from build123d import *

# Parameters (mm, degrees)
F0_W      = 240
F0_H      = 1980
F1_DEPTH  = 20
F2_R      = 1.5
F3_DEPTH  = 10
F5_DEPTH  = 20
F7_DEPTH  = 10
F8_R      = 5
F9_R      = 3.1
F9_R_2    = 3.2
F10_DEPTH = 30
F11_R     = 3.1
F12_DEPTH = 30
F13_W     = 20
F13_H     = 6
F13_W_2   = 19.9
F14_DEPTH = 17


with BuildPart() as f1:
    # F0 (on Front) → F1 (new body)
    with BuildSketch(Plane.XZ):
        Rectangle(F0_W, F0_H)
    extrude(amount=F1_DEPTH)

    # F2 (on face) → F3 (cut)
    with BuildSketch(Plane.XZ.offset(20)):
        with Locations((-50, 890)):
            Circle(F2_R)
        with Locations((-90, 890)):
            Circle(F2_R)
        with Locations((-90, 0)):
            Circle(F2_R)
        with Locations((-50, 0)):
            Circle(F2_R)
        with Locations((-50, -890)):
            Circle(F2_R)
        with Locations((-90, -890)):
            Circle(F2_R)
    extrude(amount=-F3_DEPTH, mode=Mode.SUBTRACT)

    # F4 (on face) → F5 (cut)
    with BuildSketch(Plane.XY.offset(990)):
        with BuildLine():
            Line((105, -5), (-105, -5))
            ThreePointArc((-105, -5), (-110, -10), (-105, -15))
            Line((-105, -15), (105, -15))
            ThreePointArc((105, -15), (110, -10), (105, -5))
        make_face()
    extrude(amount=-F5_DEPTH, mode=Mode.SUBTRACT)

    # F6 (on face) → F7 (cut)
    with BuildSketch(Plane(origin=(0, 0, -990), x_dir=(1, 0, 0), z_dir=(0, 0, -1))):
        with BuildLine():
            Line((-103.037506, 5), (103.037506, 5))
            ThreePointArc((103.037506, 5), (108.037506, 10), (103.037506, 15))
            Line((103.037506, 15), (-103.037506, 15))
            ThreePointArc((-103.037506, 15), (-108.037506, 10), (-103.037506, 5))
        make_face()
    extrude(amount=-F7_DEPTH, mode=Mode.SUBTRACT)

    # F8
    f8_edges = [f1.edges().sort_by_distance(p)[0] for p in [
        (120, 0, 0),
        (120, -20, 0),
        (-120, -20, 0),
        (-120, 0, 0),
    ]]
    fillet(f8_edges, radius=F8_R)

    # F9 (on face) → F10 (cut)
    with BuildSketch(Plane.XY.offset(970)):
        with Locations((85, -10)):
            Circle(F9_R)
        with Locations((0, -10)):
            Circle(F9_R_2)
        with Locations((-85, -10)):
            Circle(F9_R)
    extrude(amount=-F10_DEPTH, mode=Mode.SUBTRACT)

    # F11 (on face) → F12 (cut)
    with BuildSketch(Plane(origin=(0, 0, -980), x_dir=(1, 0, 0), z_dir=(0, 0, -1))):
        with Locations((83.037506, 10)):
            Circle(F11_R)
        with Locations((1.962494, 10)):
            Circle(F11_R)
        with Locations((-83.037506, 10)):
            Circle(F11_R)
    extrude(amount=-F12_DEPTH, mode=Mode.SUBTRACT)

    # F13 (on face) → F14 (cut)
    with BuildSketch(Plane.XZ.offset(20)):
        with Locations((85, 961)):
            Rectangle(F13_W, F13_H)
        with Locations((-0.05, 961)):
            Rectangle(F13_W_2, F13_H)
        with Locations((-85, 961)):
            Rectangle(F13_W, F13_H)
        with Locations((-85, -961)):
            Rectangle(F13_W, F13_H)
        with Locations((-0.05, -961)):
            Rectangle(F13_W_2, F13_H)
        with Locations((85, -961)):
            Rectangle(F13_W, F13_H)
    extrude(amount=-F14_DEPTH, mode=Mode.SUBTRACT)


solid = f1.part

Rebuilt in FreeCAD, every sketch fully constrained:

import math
import FreeCAD as App
import Part
import Sketcher
from FreeCAD import Vector


def edges_at(feature, points):
    """Names of the edges that pass closest to the given points."""
    edges = feature.Shape.Edges
    near = lambda p: min(range(len(edges)), key=lambda i: edges[i].distToShape(Part.Vertex(*p))[0])
    return sorted({f"Edge{near(p) + 1}" for p in points})


def add_polygon(sketch, points):
    """Adds a closed chain of lines whose ends are joined by coincident constraints."""
    first, n = sketch.GeometryCount, len(points)
    for a, b in zip(points, points[1:] + points[:1]):
        sketch.addGeometry(Part.LineSegment(App.Vector(*a, 0), App.Vector(*b, 0)), False)
    for i in range(n):
        sketch.addConstraint(Sketcher.Constraint("Coincident", first + i, 2, first + (i + 1) % n, 1))

doc = App.newDocument("Part")
body = doc.addObject("PartDesign::Body", "Body")

# Sketch on XZ plane
sketch1 = body.newObject("Sketcher::SketchObject", "Sketch")
sketch1.AttachmentSupport = (doc.getObject("XZ_Plane"), [""])
sketch1.MapMode = "FlatFace"
add_polygon(sketch1, [(-120, 990), (-120, -990), (120, -990), (120, 990)])  # lines 0-3
sketch1.addConstraint([
    Sketcher.Constraint("Vertical", 0),
    Sketcher.Constraint("Horizontal", 1),
    Sketcher.Constraint("Vertical", 2),
    Sketcher.Constraint("Horizontal", 3),
    Sketcher.Constraint("Symmetric", 0, 2, 2, 2, -1, 1),
    Sketcher.Constraint("DistanceX", 1, 1, 1, 2, 240.0),
    Sketcher.Constraint("DistanceY", 0, 2, 0, 1, 1980.0),
])
pad1 = body.newObject("PartDesign::Pad", "Pad")
pad1.Profile = sketch1
pad1.Length = 20

# Sketch on XZ plane
sketch2 = body.newObject("Sketcher::SketchObject", "Sketch001")
sketch2.AttachmentSupport = (doc.getObject("XZ_Plane"), [""])
sketch2.MapMode = "FlatFace"
sketch2.AttachmentOffset = App.Placement(Vector(0, 0, 20), App.Rotation())
sketch2.addGeometry([
    Part.Circle(Vector(-50, 890, 0), Vector(0, 0, 1), 1.5),  # 0
    Part.Circle(Vector(-90, 890, 0), Vector(0, 0, 1), 1.5),  # 1
    Part.Circle(Vector(-90, 0, 0), Vector(0, 0, 1), 1.5),  # 2
    Part.Circle(Vector(-50, 0, 0), Vector(0, 0, 1), 1.5),  # 3
    Part.Circle(Vector(-50, -890, 0), Vector(0, 0, 1), 1.5),  # 4
    Part.Circle(Vector(-90, -890, 0), Vector(0, 0, 1), 1.5),  # 5
], False)
sketch2.addConstraint([
    Sketcher.Constraint("Equal", 0, 1),
    Sketcher.Constraint("Equal", 1, 2),
    Sketcher.Constraint("Equal", 2, 3),
    Sketcher.Constraint("Equal", 3, 4),
    Sketcher.Constraint("Equal", 4, 5),
    Sketcher.Constraint("Symmetric", 0, 3, 4, 3, -1),
    Sketcher.Constraint("Symmetric", 1, 3, 5, 3, -1),
    Sketcher.Constraint("PointOnObject", 2, 3, -1),
    Sketcher.Constraint("PointOnObject", 3, 3, -1),
    Sketcher.Constraint("Horizontal", 0, 3, 1, 3),
    Sketcher.Constraint("Vertical", 1, 3, 2, 3),
    Sketcher.Constraint("Vertical", 0, 3, 3, 3),
    Sketcher.Constraint("Diameter", 0, 3.0),
    Sketcher.Constraint("DistanceX", 0, 3, -1, 1, 50.0),
    Sketcher.Constraint("DistanceY", -1, 1, 0, 3, 890.0),
    Sketcher.Constraint("DistanceX", 1, 3, -1, 1, 90.0),
])
pocket1 = body.newObject("PartDesign::Pocket", "Pocket")
pocket1.Profile = sketch2
pocket1.Length = 10

# Sketch on XY plane
sketch3 = body.newObject("Sketcher::SketchObject", "Sketch002")
sketch3.AttachmentSupport = (doc.getObject("XY_Plane"), [""])
sketch3.MapMode = "FlatFace"
sketch3.AttachmentOffset = App.Placement(Vector(0, 0, 990), App.Rotation())
sketch3.addGeometry([
    Part.LineSegment(Vector(105, -5, 0), Vector(-105, -5, 0)),
    Part.ArcOfCircle(Part.Circle(Vector(-105, -10, 0), Vector(0, 0, 1), 5), math.radians(90), math.radians(270)),
    Part.LineSegment(Vector(-105, -15, 0), Vector(105, -15, 0)),
    Part.ArcOfCircle(Part.Circle(Vector(105, -10, 0), Vector(0, 0, 1), 5), math.radians(-90), math.radians(90)),
], False)
sketch3.addConstraint([
    Sketcher.Constraint("Tangent", 0, 2, 1, 1),
    Sketcher.Constraint("Tangent", 1, 2, 2, 1),
    Sketcher.Constraint("Tangent", 2, 2, 3, 1),
    Sketcher.Constraint("Tangent", 3, 2, 0, 1),
    Sketcher.Constraint("Horizontal", 0),
    Sketcher.Constraint("Horizontal", 2),
    Sketcher.Constraint("Radius", 1, 5.0),
    Sketcher.Constraint("DistanceX", 0, 2, 0, 1, 210.0),
    Sketcher.Constraint("DistanceX", 1, 3, -1, 1, 105.0),
    Sketcher.Constraint("DistanceY", 1, 3, -1, 1, 10.0),
])
pocket2 = body.newObject("PartDesign::Pocket", "Pocket001")
pocket2.Profile = sketch3
pocket2.Length = 20

# Sketch on XY plane
sketch4 = body.newObject("Sketcher::SketchObject", "Sketch003")
sketch4.AttachmentSupport = (doc.getObject("XY_Plane"), [""])
sketch4.MapMode = "FlatFace"
sketch4.AttachmentOffset = App.Placement(Vector(0, 0, -990), App.Rotation())
sketch4.addGeometry([
    Part.LineSegment(Vector(-103, -5, 0), Vector(103, -5, 0)),
    Part.ArcOfCircle(Part.Circle(Vector(103, -10, 0), Vector(0, 0, 1), 5), math.radians(-90), math.radians(90)),
    Part.LineSegment(Vector(103, -15, 0), Vector(-103, -15, 0)),
    Part.ArcOfCircle(Part.Circle(Vector(-103, -10, 0), Vector(0, 0, 1), 5), math.radians(90), math.radians(270)),
], False)
sketch4.addConstraint([
    Sketcher.Constraint("Tangent", 0, 2, 1, 2),
    Sketcher.Constraint("Tangent", 1, 1, 2, 1),
    Sketcher.Constraint("Tangent", 2, 2, 3, 2),
    Sketcher.Constraint("Tangent", 3, 1, 0, 1),
    Sketcher.Constraint("Horizontal", 0),
    Sketcher.Constraint("Horizontal", 2),
    Sketcher.Constraint("Radius", 1, 5.0),
    Sketcher.Constraint("DistanceY", 1, 3, -1, 1, 10.0),
    Sketcher.Constraint("DistanceX", 0, 1, 0, 2, 206.075012),
    Sketcher.Constraint("DistanceX", -1, 1, 1, 3, 103.037506),
])
pocket3 = body.newObject("PartDesign::Pocket", "Pocket002")
pocket3.Profile = sketch4
pocket3.Length = 10
pocket3.Reversed = True
doc.recompute()

fillet = body.newObject("PartDesign::Fillet", "Fillet")
fillet.Base = (pocket3, edges_at(pocket3, [
    (120, 0, 0),
    (120, -20, 0),
    (-120, -20, 0),
    (-120, 0, 0),
]))
fillet.Radius = 5

# Sketch on XY plane
sketch5 = body.newObject("Sketcher::SketchObject", "Sketch004")
sketch5.AttachmentSupport = (doc.getObject("XY_Plane"), [""])
sketch5.MapMode = "FlatFace"
sketch5.AttachmentOffset = App.Placement(Vector(0, 0, 970), App.Rotation())
sketch5.addGeometry([
    Part.Circle(Vector(85, -10, 0), Vector(0, 0, 1), 3.1),
    Part.Circle(Vector(0, -10, 0), Vector(0, 0, 1), 3.2),
    Part.Circle(Vector(-85, -10, 0), Vector(0, 0, 1), 3.1),
], False)
sketch5.addConstraint([
    Sketcher.Constraint("Equal", 0, 2),
    Sketcher.Constraint("Symmetric", 0, 3, 2, 3, -2),
    Sketcher.Constraint("PointOnObject", 1, 3, -2),
    Sketcher.Constraint("Horizontal", 0, 3, 1, 3),
    Sketcher.Constraint("Diameter", 0, 6.2),
    Sketcher.Constraint("Diameter", 1, 6.4),
    Sketcher.Constraint("DistanceX", -1, 1, 0, 3, 85.0),
    Sketcher.Constraint("DistanceY", 0, 3, -1, 1, 10.0),
])
pocket4 = body.newObject("PartDesign::Pocket", "Pocket003")
pocket4.Profile = sketch5
pocket4.Length = 30

# Sketch on XY plane
sketch6 = body.newObject("Sketcher::SketchObject", "Sketch005")
sketch6.AttachmentSupport = (doc.getObject("XY_Plane"), [""])
sketch6.MapMode = "FlatFace"
sketch6.AttachmentOffset = App.Placement(Vector(0, 0, -980), App.Rotation())
sketch6.addGeometry([
    Part.Circle(Vector(83, -10, 0), Vector(0, 0, 1), 3.1),
    Part.Circle(Vector(2, -10, 0), Vector(0, 0, 1), 3.1),
    Part.Circle(Vector(-83, -10, 0), Vector(0, 0, 1), 3.1),
], False)
sketch6.addConstraint([
    Sketcher.Constraint("Equal", 0, 1),
    Sketcher.Constraint("Equal", 1, 2),
    Sketcher.Constraint("Symmetric", 0, 3, 2, 3, -2),
    Sketcher.Constraint("Horizontal", 0, 3, 1, 3),
    Sketcher.Constraint("Diameter", 0, 6.2),
    Sketcher.Constraint("DistanceY", 0, 3, -1, 1, 10.0),
    Sketcher.Constraint("DistanceX", 2, 3, 1, 3, 85.0),
    Sketcher.Constraint("DistanceX", 1, 3, 0, 3, 81.075012),
])
pocket5 = body.newObject("PartDesign::Pocket", "Pocket004")
pocket5.Profile = sketch6
pocket5.Length = 30
pocket5.Reversed = True

# Sketch on XZ plane
sketch7 = body.newObject("Sketcher::SketchObject", "Sketch006")
sketch7.AttachmentSupport = (doc.getObject("XZ_Plane"), [""])
sketch7.MapMode = "FlatFace"
sketch7.AttachmentOffset = App.Placement(Vector(0, 0, 20), App.Rotation())
add_polygon(sketch7, [(75, 964), (75, 958), (95, 958), (95, 964)])  # lines 0-3
add_polygon(sketch7, [(-10, 964), (-10, 958), (10, 958), (10, 964)])  # lines 4-7
add_polygon(sketch7, [(-95, 964), (-95, 958), (-75, 958), (-75, 964)])  # lines 8-11
add_polygon(sketch7, [(-95, -958), (-95, -964), (-75, -964), (-75, -958)])  # lines 12-15
add_polygon(sketch7, [(-10, -958), (-10, -964), (10, -964), (10, -958)])  # lines 16-19
add_polygon(sketch7, [(75, -958), (75, -964), (95, -964), (95, -958)])  # lines 20-23
sketch7.addConstraint([
    Sketcher.Constraint("Vertical", 0),
    Sketcher.Constraint("Horizontal", 1),
    Sketcher.Constraint("Vertical", 2),
    Sketcher.Constraint("Horizontal", 3),
    Sketcher.Constraint("Vertical", 4),
    Sketcher.Constraint("Horizontal", 5),
    Sketcher.Constraint("Vertical", 6),
    Sketcher.Constraint("Horizontal", 7),
    Sketcher.Constraint("Vertical", 8),
    Sketcher.Constraint("Horizontal", 9),
    Sketcher.Constraint("Vertical", 10),
    Sketcher.Constraint("Horizontal", 11),
    Sketcher.Constraint("Vertical", 12),
    Sketcher.Constraint("Horizontal", 13),
    Sketcher.Constraint("Vertical", 14),
    Sketcher.Constraint("Horizontal", 15),
    Sketcher.Constraint("Vertical", 16),
    Sketcher.Constraint("Horizontal", 17),
    Sketcher.Constraint("Vertical", 18),
    Sketcher.Constraint("Horizontal", 19),
    Sketcher.Constraint("Vertical", 20),
    Sketcher.Constraint("Horizontal", 21),
    Sketcher.Constraint("Vertical", 22),
    Sketcher.Constraint("Horizontal", 23),
    Sketcher.Constraint("Symmetric", 2, 2, 12, 2, -1, 1),
    Sketcher.Constraint("Symmetric", 0, 2, 14, 2, -1, 1),
    Sketcher.Constraint("Symmetric", 10, 2, 20, 2, -1, 1),
    Sketcher.Constraint("Symmetric", 8, 2, 22, 2, -1, 1),
    Sketcher.Constraint("Symmetric", 1, 2, 8, 2, -2),
    Sketcher.Constraint("Symmetric", 3, 2, 10, 2, -2),
    Sketcher.Constraint("Symmetric", 7, 2, 16, 2, -1),
    Sketcher.Constraint("Symmetric", 5, 2, 18, 2, -1),
    Sketcher.Constraint("Horizontal", 1, 2, 4, 2),
    Sketcher.Constraint("Horizontal", 3, 2, 6, 2),
    Sketcher.Constraint("DistanceX", 1, 1, 1, 2, 20.0),
    Sketcher.Constraint("DistanceY", 0, 2, 0, 1, 6.0),
    Sketcher.Constraint("DistanceX", 5, 1, 5, 2, 19.9),
    Sketcher.Constraint("DistanceX", -1, 1, 0, 2, 75.0),
    Sketcher.Constraint("DistanceY", -1, 1, 0, 2, 958.0),
    Sketcher.Constraint("DistanceX", 4, 2, -1, 1, 10.0),
])
pocket6 = body.newObject("PartDesign::Pocket", "Pocket005")
pocket6.Profile = sketch7
pocket6.Length = 17

doc.recompute()
